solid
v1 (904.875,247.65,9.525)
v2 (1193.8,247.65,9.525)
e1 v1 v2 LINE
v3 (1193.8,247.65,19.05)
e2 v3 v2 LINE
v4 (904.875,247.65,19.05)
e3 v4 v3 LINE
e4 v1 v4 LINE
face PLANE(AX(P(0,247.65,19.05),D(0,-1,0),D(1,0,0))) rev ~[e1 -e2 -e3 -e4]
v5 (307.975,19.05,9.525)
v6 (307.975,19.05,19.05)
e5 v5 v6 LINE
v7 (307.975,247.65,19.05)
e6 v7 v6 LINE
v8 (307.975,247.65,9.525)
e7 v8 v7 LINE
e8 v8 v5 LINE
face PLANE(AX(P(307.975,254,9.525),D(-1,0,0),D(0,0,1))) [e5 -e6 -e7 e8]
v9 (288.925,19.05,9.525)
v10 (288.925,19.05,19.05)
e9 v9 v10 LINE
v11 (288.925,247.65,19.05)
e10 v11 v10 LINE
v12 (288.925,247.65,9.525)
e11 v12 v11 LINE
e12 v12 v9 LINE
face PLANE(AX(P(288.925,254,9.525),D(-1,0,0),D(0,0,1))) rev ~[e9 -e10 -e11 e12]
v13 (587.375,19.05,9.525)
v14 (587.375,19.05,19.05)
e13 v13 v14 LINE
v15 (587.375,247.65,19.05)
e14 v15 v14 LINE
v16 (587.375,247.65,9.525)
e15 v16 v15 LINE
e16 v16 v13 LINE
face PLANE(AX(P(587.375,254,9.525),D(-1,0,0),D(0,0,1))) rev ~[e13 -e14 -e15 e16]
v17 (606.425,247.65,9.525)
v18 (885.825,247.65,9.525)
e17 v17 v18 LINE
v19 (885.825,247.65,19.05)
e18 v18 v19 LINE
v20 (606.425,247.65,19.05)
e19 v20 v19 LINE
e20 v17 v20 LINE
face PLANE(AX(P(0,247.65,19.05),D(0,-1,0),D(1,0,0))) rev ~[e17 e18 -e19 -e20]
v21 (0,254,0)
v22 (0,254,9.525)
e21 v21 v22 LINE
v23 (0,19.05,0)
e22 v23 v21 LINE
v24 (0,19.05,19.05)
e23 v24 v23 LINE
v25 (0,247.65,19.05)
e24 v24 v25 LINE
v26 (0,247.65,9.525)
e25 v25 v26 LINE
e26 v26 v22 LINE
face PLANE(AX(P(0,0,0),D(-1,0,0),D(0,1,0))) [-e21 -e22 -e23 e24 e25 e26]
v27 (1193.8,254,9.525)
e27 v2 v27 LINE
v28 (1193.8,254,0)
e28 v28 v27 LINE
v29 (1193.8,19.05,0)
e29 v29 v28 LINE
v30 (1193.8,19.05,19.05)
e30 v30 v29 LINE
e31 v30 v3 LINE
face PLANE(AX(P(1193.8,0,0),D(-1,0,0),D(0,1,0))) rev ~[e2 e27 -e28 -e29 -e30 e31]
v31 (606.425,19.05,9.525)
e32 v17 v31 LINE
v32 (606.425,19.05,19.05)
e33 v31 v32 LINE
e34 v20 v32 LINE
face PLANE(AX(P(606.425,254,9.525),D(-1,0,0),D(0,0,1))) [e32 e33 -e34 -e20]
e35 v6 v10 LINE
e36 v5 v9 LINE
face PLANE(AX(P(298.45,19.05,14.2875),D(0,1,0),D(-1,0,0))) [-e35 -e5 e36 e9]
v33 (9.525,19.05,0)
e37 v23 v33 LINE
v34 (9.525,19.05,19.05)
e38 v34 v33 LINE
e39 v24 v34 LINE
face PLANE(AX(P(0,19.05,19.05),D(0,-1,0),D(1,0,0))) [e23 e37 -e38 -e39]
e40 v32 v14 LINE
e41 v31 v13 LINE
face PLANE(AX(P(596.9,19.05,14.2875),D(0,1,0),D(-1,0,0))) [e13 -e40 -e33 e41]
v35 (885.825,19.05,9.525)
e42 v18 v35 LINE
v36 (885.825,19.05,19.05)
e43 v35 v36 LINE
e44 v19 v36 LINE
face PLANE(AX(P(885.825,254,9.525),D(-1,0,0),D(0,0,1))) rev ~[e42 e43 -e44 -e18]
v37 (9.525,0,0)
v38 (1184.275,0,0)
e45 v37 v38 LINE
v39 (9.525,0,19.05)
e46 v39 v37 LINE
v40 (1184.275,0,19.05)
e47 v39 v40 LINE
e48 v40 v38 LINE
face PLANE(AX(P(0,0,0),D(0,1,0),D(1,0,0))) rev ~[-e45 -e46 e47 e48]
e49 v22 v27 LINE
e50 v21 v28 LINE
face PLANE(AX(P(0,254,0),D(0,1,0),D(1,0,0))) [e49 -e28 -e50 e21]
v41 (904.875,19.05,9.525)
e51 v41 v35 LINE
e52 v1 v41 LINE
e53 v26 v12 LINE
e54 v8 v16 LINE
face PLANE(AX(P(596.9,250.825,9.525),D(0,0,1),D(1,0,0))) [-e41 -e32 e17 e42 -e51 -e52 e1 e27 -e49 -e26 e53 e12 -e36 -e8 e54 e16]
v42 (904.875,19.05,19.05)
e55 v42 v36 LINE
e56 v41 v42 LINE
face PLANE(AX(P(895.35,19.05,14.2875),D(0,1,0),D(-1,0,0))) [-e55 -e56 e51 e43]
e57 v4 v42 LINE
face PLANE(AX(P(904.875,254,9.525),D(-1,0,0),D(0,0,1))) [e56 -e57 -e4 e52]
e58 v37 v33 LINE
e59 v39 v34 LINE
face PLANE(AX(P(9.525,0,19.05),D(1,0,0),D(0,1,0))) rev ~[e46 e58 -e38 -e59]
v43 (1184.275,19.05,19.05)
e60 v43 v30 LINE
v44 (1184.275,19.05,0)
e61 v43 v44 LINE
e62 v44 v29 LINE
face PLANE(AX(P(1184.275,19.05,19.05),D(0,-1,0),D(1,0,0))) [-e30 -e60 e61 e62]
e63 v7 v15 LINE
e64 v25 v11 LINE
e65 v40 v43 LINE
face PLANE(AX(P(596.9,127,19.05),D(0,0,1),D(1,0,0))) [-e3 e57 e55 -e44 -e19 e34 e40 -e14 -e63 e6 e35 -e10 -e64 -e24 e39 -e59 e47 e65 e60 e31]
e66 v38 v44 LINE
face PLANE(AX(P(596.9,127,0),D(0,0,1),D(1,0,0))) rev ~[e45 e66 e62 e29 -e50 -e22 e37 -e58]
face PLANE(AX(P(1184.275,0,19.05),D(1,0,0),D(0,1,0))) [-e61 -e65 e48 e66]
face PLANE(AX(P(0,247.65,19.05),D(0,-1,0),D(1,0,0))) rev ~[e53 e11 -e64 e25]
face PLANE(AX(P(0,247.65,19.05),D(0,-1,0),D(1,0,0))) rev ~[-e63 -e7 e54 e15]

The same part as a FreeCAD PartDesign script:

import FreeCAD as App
import Part
import Sketcher
from FreeCAD import Vector
Q = App.Units.Quantity

doc = App.newDocument("Part")
body = doc.addObject("PartDesign::Body", "Body")

sketch1 = body.newObject("Sketcher::SketchObject", "Sketch")
sketch1.AttachmentSupport = (doc.getObject("XY_Plane"), [""])
sketch1.MapMode = "FlatFace"
sketch1.addGeometry([
    Part.LineSegment(Vector(0, 254, 0), Vector(0, 0, 0)),
    Part.LineSegment(Vector(0, 0, 0), Vector(1194, 0, 0)),
    Part.LineSegment(Vector(1194, 0, 0), Vector(1194, 254, 0)),
    Part.LineSegment(Vector(1194, 254, 0), Vector(0, 254, 0)),
], False)
sketch1.addConstraint([
    Sketcher.Constraint("Coincident", 0, 2, 1, 1),
    Sketcher.Constraint("Coincident", 1, 2, 2, 1),
    Sketcher.Constraint("Coincident", 2, 2, 3, 1),
    Sketcher.Constraint("Coincident", 3, 2, 0, 1),
    Sketcher.Constraint("Vertical", 0),
    Sketcher.Constraint("Horizontal", 1),
    Sketcher.Constraint("Vertical", 2),
    Sketcher.Constraint("Horizontal", 3),
    Sketcher.Constraint("Coincident", 0, 2, -1, 1),
    Sketcher.Constraint("DistanceX", 1, 1, 1, 2, Q("47 in")),
    Sketcher.Constraint("DistanceY", 0, 2, 0, 1, Q("10 in")),
])
pad1 = body.newObject("PartDesign::Pad", "Pad")
pad1.Profile = sketch1
pad1.Length = Q("0.75 in")

sketch2 = body.newObject("Sketcher::SketchObject", "Sketch001")
sketch2.AttachmentSupport = (doc.getObject("XZ_Plane"), [""])
sketch2.MapMode = "FlatFace"
sketch2.AttachmentOffset = App.Placement(Vector(0, 0, -10 * 25.4), App.Rotation())
sketch2.addGeometry([
    Part.LineSegment(Vector(308, 19, 0), Vector(308, 10, 0)),
    Part.LineSegment(Vector(308, 10, 0), Vector(289, 10, 0)),
    Part.LineSegment(Vector(289, 10, 0), Vector(289, 19, 0)),
    Part.LineSegment(Vector(289, 19, 0), Vector(308, 19, 0)),
    Part.LineSegment(Vector(606, 19, 0), Vector(606, 10, 0)),
    Part.LineSegment(Vector(606, 10, 0), Vector(587, 10, 0)),
    Part.LineSegment(Vector(587, 10, 0), Vector(587, 19, 0)),
    Part.LineSegment(Vector(587, 19, 0), Vector(606, 19, 0)),
    Part.LineSegment(Vector(905, 19, 0), Vector(905, 10, 0)),
    Part.LineSegment(Vector(905, 10, 0), Vector(886, 10, 0)),
    Part.LineSegment(Vector(886, 10, 0), Vector(886, 19, 0)),
    Part.LineSegment(Vector(886, 19, 0), Vector(905, 19, 0)),
], False)
sketch2.addConstraint([
    Sketcher.Constraint("Coincident", 0, 2, 1, 1),
    Sketcher.Constraint("Coincident", 1, 2, 2, 1),
    Sketcher.Constraint("Coincident", 2, 2, 3, 1),
    Sketcher.Constraint("Coincident", 3, 2, 0, 1),
    Sketcher.Constraint("Coincident", 4, 2, 5, 1),
    Sketcher.Constraint("Coincident", 5, 2, 6, 1),
    Sketcher.Constraint("Coincident", 6, 2, 7, 1),
    Sketcher.Constraint("Coincident", 7, 2, 4, 1),
    Sketcher.Constraint("Coincident", 8, 2, 9, 1),
    Sketcher.Constraint("Coincident", 9, 2, 10, 1),
    Sketcher.Constraint("Coincident", 10, 2, 11, 1),
    Sketcher.Constraint("Coincident", 11, 2, 8, 1),
    Sketcher.Constraint("Vertical", 0),
    Sketcher.Constraint("Horizontal", 1),
    Sketcher.Constraint("Vertical", 2),
    Sketcher.Constraint("Horizontal", 3),
    Sketcher.Constraint("Vertical", 4),
    Sketcher.Constraint("Horizontal", 5),
    Sketcher.Constraint("Vertical", 6),
    Sketcher.Constraint("Horizontal", 7),
    Sketcher.Constraint("Vertical", 8),
    Sketcher.Constraint("Horizontal", 9),
    Sketcher.Constraint("Vertical", 10),
    Sketcher.Constraint("Horizontal", 11),
    Sketcher.Constraint("Horizontal", 1, 2, 4, 2),
    Sketcher.Constraint("Horizontal", 3, 2, 6, 2),
    Sketcher.Constraint("Horizontal", 5, 2, 8, 2),
    Sketcher.Constraint("Horizontal", 7, 2, 10, 2),
    Sketcher.Constraint("Equal", 3, 5),
    Sketcher.Constraint("Equal", 7, 9),
    Sketcher.Constraint("DistanceX", 0, 2, 5, 2, Q("11 in")),
    Sketcher.Constraint("DistanceX", 4, 2, 9, 2, Q("11 in")),
    Sketcher.Constraint("DistanceX", 1, 2, 1, 1, Q("0.75 in")),
    Sketcher.Constraint("DistanceY", 0, 2, 0, 1, Q("0.375 in")),
    Sketcher.Constraint("DistanceY", -1, 1, 2, 2, Q("0.75 in")),
    Sketcher.Constraint("DistanceX", -1, 1, 0, 2, Q("12.125 in")),
])
pocket1 = body.newObject("PartDesign::Pocket", "Pocket")
pocket1.Profile = sketch2
pocket1.Length = Q("9.25 in")
pocket1.Reversed = True

sketch3 = body.newObject("Sketcher::SketchObject", "Sketch002")
sketch3.AttachmentSupport = (doc.getObject("XY_Plane"), [""])
sketch3.MapMode = "FlatFace"
sketch3.AttachmentOffset = App.Placement(Vector(0, 0, 0.75 * 25.4), App.Rotation())
sketch3.addGeometry([
    Part.LineSegment(Vector(0, 254, 0), Vector(0, 248, 0)),
    Part.LineSegment(Vector(0, 248, 0), Vector(1194, 248, 0)),
    Part.LineSegment(Vector(1194, 248, 0), Vector(1194, 254, 0)),
    Part.LineSegment(Vector(1194, 254, 0), Vector(0, 254, 0)),
], False)
sketch3.addConstraint([
    Sketcher.Constraint("Coincident", 0, 2, 1, 1),
    Sketcher.Constraint("Coincident", 1, 2, 2, 1),
    Sketcher.Constraint("Coincident", 2, 2, 3, 1),
    Sketcher.Constraint("Coincident", 3, 2, 0, 1),
    Sketcher.Constraint("Vertical", 0),
    Sketcher.Constraint("Horizontal", 1),
    Sketcher.Constraint("Vertical", 2),
    Sketcher.Constraint("Horizontal", 3),
    Sketcher.Constraint("PointOnObject", 0, 2, -2),
    Sketcher.Constraint("DistanceX", 1, 1, 1, 2, Q("47 in")),
    Sketcher.Constraint("DistanceY", -1, 1, 2, 2, Q("10 in")),
    Sketcher.Constraint("DistanceY", 0, 2, 0, 1, Q("0.25 in")),
])
pocket2 = body.newObject("PartDesign::Pocket", "Pocket001")
pocket2.Profile = sketch3
pocket2.Length = Q("0.375 in")

sketch4 = body.newObject("Sketcher::SketchObject", "Sketch003")
sketch4.AttachmentSupport = (doc.getObject("XY_Plane"), [""])
sketch4.MapMode = "FlatFace"
sketch4.AttachmentOffset = App.Placement(Vector(0, 0, 0.75 * 25.4), App.Rotation())
sketch4.addGeometry([
    Part.LineSegment(Vector(0, 19, 0), Vector(0, 0, 0)),
    Part.LineSegment(Vector(0, 0, 0), Vector(10, 0, 0)),
    Part.LineSegment(Vector(10, 0, 0), Vector(10, 19, 0)),
    Part.LineSegment(Vector(10, 19, 0), Vector(0, 19, 0)),
    Part.LineSegment(Vector(1184, 19, 0), Vector(1184, 0, 0)),
    Part.LineSegment(Vector(1184, 0, 0), Vector(1194, 0, 0)),
    Part.LineSegment(Vector(1194, 0, 0), Vector(1194, 19, 0)),
    Part.LineSegment(Vector(1194, 19, 0), Vector(1184, 19, 0)),
], False)
sketch4.addConstraint([
    Sketcher.Constraint("Coincident", 0, 2, 1, 1),
    Sketcher.Constraint("Coincident", 1, 2, 2, 1),
    Sketcher.Constraint("Coincident", 2, 2, 3, 1),
    Sketcher.Constraint("Coincident", 3, 2, 0, 1),
    Sketcher.Constraint("Coincident", 4, 2, 5, 1),
    Sketcher.Constraint("Coincident", 5, 2, 6, 1),
    Sketcher.Constraint("Coincident", 6, 2, 7, 1),
    Sketcher.Constraint("Coincident", 7, 2, 4, 1),
    Sketcher.Constraint("Vertical", 0),
    Sketcher.Constraint("Horizontal", 1),
    Sketcher.Constraint("Vertical", 2),
    Sketcher.Constraint("Horizontal", 3),
    Sketcher.Constraint("Vertical", 4),
    Sketcher.Constraint("Horizontal", 5),
    Sketcher.Constraint("Vertical", 6),
    Sketcher.Constraint("Horizontal", 7),
    Sketcher.Constraint("Coincident", 0, 2, -1, 1),
    Sketcher.Constraint("PointOnObject", 4, 2, -1),
    Sketcher.Constraint("Horizontal", 3, 2, 6, 2),
    Sketcher.Constraint("Equal", 3, 5),
    Sketcher.Constraint("DistanceX", -1, 1, 5, 2, Q("47 in")),
    Sketcher.Constraint("DistanceY", 0, 2, 0, 1, Q("0.75 in")),
    Sketcher.Constraint("DistanceX", 1, 1, 1, 2, Q("0.375 in")),
])
pocket3 = body.newObject("PartDesign::Pocket", "Pocket002")
pocket3.Profile = sketch4
pocket3.Length = Q("1 in")

doc.recompute()
